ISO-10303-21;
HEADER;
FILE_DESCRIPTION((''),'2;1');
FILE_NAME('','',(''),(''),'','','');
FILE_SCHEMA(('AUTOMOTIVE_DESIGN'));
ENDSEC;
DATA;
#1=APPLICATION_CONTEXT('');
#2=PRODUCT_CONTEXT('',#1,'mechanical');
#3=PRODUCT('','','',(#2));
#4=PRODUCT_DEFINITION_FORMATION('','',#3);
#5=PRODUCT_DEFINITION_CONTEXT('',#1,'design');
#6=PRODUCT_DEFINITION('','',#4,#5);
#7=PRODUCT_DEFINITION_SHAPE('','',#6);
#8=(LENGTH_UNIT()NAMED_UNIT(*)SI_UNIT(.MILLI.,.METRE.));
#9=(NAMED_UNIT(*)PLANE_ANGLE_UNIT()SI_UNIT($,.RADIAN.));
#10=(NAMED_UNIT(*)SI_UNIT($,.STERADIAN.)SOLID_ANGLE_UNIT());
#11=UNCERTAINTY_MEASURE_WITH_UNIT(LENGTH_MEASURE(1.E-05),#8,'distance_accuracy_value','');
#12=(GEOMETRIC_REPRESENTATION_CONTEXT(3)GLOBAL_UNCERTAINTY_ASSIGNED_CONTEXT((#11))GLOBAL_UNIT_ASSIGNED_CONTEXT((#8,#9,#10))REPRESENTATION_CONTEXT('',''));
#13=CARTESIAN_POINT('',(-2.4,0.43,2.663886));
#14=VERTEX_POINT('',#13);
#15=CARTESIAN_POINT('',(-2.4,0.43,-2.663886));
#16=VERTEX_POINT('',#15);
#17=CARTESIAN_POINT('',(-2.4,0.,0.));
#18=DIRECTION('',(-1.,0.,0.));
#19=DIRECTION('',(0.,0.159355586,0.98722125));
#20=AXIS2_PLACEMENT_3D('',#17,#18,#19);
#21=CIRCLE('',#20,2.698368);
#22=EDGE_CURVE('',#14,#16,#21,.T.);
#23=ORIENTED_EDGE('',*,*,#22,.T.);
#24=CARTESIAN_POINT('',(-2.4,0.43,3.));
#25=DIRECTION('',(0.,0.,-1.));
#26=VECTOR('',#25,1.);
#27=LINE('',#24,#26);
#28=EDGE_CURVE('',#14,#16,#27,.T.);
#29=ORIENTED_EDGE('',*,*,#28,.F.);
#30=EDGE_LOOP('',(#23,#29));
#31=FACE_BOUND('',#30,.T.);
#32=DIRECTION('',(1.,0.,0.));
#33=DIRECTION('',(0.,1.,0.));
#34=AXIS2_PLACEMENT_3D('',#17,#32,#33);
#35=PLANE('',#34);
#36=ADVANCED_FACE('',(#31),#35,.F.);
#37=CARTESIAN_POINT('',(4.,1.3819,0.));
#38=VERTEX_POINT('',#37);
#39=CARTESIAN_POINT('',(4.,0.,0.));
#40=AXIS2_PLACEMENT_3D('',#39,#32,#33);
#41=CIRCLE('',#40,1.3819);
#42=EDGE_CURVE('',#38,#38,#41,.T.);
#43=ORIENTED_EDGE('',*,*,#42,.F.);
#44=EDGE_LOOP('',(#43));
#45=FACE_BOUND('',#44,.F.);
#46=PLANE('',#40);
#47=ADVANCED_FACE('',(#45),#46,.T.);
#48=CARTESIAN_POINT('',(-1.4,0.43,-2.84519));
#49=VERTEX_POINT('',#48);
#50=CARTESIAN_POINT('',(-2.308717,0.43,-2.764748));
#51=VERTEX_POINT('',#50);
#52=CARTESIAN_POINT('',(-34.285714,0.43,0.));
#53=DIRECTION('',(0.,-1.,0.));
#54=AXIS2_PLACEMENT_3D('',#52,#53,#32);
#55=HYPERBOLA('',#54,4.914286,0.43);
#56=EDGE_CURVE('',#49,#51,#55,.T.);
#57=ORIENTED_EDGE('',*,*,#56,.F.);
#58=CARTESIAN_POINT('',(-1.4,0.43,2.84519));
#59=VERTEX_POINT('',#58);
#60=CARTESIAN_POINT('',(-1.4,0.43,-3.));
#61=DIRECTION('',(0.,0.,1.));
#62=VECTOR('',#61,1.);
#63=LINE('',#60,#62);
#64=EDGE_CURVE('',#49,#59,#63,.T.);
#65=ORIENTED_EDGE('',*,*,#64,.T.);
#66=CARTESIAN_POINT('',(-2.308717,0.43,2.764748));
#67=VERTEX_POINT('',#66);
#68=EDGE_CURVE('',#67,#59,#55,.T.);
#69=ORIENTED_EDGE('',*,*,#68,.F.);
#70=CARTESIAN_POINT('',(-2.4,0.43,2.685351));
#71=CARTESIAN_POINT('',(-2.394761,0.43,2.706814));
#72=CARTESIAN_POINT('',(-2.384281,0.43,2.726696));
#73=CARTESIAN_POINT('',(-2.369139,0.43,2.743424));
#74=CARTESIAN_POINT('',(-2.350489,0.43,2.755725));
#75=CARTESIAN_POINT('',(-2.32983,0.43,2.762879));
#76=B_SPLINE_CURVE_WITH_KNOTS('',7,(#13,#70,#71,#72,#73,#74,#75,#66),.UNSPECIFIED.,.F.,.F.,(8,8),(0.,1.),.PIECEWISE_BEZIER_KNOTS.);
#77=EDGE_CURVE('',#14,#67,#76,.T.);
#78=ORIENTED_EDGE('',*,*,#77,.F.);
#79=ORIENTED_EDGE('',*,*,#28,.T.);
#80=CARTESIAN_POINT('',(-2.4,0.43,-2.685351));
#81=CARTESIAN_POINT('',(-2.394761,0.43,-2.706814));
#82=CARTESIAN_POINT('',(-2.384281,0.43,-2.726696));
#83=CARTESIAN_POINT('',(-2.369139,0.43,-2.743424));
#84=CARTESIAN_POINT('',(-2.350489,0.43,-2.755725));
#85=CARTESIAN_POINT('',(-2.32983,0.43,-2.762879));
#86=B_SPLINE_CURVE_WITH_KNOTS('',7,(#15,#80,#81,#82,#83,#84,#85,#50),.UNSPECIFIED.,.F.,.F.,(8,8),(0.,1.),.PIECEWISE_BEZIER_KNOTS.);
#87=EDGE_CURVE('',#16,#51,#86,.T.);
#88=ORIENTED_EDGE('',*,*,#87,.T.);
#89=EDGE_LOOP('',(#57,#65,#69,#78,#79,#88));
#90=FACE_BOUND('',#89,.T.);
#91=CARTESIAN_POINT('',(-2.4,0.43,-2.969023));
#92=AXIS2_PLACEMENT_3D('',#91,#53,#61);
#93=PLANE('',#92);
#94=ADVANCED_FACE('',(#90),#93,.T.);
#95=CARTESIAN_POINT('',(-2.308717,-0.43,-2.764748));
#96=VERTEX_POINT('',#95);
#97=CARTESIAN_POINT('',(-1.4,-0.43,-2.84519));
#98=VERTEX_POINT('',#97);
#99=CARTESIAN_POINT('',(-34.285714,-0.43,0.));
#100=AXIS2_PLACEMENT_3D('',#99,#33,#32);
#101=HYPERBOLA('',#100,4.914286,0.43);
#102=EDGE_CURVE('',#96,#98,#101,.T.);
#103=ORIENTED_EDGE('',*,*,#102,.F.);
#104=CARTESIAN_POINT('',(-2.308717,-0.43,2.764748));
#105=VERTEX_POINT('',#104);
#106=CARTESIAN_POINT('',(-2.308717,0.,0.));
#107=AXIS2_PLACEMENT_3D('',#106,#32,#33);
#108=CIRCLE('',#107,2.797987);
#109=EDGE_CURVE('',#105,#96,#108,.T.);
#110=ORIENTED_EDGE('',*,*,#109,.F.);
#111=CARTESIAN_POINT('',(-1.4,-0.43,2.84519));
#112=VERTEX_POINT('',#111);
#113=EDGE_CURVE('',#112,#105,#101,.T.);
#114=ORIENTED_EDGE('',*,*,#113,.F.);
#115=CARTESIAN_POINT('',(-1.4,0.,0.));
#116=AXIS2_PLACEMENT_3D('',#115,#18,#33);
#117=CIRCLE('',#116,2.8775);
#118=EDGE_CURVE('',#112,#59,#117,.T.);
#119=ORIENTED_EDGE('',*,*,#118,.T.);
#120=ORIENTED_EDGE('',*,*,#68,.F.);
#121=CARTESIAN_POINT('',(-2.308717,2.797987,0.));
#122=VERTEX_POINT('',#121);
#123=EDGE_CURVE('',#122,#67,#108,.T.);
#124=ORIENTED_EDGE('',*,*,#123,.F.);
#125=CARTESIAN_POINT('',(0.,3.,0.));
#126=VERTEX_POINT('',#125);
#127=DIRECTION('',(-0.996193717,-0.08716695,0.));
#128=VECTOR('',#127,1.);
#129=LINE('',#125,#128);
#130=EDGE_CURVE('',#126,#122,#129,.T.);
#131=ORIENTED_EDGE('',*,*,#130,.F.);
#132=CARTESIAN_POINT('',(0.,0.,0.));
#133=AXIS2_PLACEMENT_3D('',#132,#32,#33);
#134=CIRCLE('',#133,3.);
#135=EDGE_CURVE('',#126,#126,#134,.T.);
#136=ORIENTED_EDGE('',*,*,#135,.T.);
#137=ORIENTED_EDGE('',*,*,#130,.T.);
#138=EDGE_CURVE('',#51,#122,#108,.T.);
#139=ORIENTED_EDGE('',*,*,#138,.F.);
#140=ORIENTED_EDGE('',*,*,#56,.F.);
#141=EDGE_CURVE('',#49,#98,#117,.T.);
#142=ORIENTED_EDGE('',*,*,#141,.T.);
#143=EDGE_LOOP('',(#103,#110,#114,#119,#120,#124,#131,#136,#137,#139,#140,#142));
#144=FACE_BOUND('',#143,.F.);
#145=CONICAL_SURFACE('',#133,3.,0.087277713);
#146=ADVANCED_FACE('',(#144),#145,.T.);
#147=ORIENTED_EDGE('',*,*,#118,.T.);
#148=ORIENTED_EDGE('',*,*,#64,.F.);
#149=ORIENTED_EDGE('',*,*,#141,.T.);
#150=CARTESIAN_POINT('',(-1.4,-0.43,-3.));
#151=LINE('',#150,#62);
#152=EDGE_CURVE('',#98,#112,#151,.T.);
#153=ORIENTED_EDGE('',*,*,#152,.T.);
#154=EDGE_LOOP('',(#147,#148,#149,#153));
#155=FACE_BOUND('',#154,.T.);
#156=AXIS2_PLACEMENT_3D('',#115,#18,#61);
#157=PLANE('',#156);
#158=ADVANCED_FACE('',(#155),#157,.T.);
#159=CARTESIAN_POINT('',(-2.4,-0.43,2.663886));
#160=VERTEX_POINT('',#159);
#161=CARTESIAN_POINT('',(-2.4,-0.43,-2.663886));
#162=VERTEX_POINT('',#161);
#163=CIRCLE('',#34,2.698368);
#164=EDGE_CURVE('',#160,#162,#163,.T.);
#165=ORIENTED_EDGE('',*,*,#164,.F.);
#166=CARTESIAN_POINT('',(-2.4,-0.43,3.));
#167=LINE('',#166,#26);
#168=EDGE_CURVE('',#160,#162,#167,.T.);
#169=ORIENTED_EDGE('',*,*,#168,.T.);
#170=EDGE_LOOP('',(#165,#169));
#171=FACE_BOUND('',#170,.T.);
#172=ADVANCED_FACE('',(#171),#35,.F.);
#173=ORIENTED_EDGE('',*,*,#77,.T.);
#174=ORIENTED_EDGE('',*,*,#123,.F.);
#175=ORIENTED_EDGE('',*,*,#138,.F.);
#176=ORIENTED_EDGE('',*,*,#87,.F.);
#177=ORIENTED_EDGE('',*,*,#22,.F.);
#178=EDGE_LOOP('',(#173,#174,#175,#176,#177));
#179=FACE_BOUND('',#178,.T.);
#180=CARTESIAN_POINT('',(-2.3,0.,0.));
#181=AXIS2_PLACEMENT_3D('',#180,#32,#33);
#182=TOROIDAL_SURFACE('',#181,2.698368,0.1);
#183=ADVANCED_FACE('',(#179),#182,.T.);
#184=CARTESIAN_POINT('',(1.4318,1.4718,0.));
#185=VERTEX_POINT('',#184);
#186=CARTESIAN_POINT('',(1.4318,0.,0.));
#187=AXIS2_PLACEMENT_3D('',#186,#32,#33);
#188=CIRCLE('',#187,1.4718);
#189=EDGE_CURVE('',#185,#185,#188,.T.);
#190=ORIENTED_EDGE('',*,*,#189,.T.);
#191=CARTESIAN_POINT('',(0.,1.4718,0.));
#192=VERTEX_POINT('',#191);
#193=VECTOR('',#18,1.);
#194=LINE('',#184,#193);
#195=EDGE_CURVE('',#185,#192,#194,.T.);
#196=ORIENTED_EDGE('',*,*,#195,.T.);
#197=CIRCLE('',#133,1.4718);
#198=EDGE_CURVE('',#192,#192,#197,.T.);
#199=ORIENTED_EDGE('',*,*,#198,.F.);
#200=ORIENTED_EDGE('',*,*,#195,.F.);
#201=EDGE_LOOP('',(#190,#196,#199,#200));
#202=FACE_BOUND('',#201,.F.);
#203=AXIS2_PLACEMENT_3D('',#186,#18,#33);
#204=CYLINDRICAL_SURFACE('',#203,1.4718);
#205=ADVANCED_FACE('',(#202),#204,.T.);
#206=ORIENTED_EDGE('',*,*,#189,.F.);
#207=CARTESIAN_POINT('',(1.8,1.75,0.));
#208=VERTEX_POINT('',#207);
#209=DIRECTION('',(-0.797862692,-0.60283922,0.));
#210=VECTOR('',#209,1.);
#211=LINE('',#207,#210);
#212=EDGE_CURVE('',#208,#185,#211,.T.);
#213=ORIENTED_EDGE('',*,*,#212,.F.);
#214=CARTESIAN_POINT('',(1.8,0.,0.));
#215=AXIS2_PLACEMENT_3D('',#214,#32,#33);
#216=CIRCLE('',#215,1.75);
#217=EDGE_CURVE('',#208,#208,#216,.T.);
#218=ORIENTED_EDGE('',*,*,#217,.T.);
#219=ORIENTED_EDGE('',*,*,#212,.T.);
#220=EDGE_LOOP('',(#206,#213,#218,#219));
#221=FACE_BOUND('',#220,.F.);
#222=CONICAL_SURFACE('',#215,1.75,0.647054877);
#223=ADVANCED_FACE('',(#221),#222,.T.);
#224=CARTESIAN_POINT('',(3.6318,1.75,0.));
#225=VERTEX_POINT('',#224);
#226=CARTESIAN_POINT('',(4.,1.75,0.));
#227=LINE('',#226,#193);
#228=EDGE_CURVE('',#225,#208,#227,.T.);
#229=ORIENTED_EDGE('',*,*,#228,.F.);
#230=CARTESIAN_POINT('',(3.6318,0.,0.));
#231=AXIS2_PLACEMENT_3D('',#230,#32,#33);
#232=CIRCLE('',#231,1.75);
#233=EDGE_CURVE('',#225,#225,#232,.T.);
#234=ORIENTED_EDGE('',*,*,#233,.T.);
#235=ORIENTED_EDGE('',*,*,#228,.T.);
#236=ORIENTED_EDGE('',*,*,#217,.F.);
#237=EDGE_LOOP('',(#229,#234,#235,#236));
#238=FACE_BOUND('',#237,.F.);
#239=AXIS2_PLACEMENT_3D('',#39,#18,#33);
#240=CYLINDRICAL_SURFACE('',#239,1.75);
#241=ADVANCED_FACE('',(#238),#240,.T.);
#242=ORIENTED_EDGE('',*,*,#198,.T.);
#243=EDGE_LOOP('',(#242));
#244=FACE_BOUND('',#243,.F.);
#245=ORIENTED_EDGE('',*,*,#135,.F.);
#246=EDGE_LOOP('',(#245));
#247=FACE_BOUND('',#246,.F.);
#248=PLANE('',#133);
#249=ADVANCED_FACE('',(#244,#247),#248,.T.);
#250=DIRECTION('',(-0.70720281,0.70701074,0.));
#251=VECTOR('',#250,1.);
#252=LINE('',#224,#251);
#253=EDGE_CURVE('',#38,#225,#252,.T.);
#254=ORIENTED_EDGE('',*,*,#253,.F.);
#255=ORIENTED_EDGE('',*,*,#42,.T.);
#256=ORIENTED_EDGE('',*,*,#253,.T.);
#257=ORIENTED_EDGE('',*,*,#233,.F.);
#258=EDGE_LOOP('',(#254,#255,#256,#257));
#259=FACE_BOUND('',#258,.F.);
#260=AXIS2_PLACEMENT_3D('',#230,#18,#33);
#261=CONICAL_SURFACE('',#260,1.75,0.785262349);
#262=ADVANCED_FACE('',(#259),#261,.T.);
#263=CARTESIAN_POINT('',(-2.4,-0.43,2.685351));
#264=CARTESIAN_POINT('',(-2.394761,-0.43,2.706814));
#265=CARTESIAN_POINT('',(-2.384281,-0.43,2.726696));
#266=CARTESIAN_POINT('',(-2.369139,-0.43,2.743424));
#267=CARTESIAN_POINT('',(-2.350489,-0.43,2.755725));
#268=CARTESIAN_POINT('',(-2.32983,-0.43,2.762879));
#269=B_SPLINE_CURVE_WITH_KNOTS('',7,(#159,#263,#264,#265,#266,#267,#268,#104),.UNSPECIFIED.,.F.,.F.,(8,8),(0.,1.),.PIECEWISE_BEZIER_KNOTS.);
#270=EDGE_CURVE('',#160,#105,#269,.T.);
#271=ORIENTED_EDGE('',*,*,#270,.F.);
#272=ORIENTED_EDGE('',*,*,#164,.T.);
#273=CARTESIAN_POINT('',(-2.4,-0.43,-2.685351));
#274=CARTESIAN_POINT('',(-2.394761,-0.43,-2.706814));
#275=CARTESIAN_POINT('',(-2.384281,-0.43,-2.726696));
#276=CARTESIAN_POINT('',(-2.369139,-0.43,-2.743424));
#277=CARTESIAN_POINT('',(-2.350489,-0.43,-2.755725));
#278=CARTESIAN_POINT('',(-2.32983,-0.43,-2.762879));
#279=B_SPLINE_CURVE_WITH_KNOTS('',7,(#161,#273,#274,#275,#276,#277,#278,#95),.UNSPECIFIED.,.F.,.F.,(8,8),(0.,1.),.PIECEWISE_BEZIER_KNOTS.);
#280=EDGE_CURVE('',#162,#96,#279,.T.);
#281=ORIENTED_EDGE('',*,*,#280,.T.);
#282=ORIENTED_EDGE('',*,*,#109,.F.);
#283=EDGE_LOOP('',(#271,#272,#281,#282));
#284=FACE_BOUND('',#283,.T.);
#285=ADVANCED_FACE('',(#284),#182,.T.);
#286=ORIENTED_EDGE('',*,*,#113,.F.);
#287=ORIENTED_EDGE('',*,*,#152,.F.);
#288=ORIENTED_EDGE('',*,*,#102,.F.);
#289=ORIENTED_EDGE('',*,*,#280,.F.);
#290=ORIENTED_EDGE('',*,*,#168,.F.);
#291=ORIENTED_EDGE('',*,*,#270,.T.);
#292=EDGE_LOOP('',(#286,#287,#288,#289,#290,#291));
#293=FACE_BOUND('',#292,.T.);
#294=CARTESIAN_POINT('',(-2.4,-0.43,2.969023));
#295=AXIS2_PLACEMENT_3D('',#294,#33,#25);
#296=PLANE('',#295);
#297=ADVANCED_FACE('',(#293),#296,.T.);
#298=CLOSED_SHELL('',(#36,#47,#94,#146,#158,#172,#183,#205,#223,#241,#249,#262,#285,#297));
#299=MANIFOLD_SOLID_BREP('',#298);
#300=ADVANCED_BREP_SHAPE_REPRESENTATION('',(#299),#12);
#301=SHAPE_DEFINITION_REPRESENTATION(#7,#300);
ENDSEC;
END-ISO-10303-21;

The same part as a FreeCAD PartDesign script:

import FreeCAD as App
import Part
import Sketcher
from FreeCAD import Vector
Q = App.Units.Quantity


def edges_at(feature, points):
    """Names of the edges that pass closest to the given points."""
    edges = feature.Shape.Edges
    near = lambda p: min(range(len(edges)), key=lambda i: edges[i].distToShape(Part.Vertex(*p))[0])
    return sorted({f"Edge{near(p) + 1}" for p in points})


def add_polygon(sketch, points):
    """Adds a closed chain of lines whose ends are joined by coincident constraints."""
    first, n = sketch.GeometryCount, len(points)
    for a, b in zip(points, points[1:] + points[:1]):
        sketch.addGeometry(Part.LineSegment(App.Vector(*a, 0), App.Vector(*b, 0)), False)
    for i in range(n):
        sketch.addConstraint(Sketcher.Constraint("Coincident", first + i, 2, first + (i + 1) % n, 1))

doc = App.newDocument("Part")
body = doc.addObject("PartDesign::Body", "Body")

sketch1 = body.newObject("Sketcher::SketchObject", "Sketch")
sketch1.AttachmentSupport = (doc.getObject("XY_Plane"), [""])
sketch1.MapMode = "FlatFace"
add_polygon(sketch1, [(-2.4, 2.79), (-2.4, 0), (4, 0), (4, 1.75), (1.8, 1.75), (1.43, 1.47), (0, 1.47), (0, 3)])
sketch1.addConstraint([
    Sketcher.Constraint("Vertical", 0),
    Sketcher.Constraint("Horizontal", 1),
    Sketcher.Constraint("Vertical", 2),
    Sketcher.Constraint("Horizontal", 3),
    Sketcher.Constraint("Horizontal", 5),
    Sketcher.Constraint("Vertical", 6),
    Sketcher.Constraint("PointOnObject", 0, 2, -1),
    Sketcher.Constraint("PointOnObject", 5, 2, -2),
    Sketcher.Constraint("DistanceX", 3, 2, 3, 1, 2.2),
    Sketcher.Constraint("DistanceX", -1, 1, 1, 2, 4.0),
    Sketcher.Constraint("DistanceX", 0, 2, -1, 1, 2.4),
    Sketcher.Constraint("Angle", 7, Q("-174.9994 deg")),
    Sketcher.Constraint("DistanceY", -1, 1, 6, 2, 3.0),
    Sketcher.Constraint("DistanceY", 2, 1, 2, 2, 1.75),
    Sketcher.Constraint("DistanceX", 4, 2, 3, 2, 0.3682),
    Sketcher.Constraint("DistanceY", 6, 1, 6, 2, 1.5282),
])
revolution = body.newObject("PartDesign::Revolution", "Revolution")
revolution.Profile = sketch1
revolution.ReferenceAxis = (sketch1, ["H_Axis"])
revolution.Angle = 360
doc.recompute()

fillet = body.newObject("PartDesign::Fillet", "Fillet")
fillet.Base = (revolution, edges_at(revolution, [(-2.4, -2.79, 0)]))
fillet.Radius = 0.1

sketch2 = body.newObject("Sketcher::SketchObject", "Sketch001")
sketch2.AttachmentSupport = (doc.getObject("YZ_Plane"), [""])
sketch2.MapMode = "FlatFace"
sketch2.AttachmentOffset = App.Placement(Vector(0, 0, -2.4), App.Rotation())
add_polygon(sketch2, [(-0.4, 3), (0.4, 3), (0.4, -3), (-0.4, -3)])
sketch2.addConstraint([
    Sketcher.Constraint("Horizontal", 0),
    Sketcher.Constraint("Vertical", 1),
    Sketcher.Constraint("Horizontal", 2),
    Sketcher.Constraint("Vertical", 3),
    Sketcher.Constraint("Symmetric", 0, 2, 2, 2, -1, 1),
    Sketcher.Constraint("DistanceY", 1, 2, 1, 1, 6.0),
    Sketcher.Constraint("DistanceX", 0, 1, 0, 2, 0.86),
])
pocket1 = body.newObject("PartDesign::Pocket", "Pocket")
pocket1.Profile = sketch2
pocket1.Length = 1
pocket1.Reversed = True
doc.recompute()

chamfer = body.newObject("PartDesign::Chamfer", "Chamfer")
chamfer.Base = (pocket1, edges_at(pocket1, [(4, -1.75, 0)]))
chamfer.ChamferType = "Two distances"
chamfer.Size = 0.3681
chamfer.Size2 = 0.3682

doc.recompute()
